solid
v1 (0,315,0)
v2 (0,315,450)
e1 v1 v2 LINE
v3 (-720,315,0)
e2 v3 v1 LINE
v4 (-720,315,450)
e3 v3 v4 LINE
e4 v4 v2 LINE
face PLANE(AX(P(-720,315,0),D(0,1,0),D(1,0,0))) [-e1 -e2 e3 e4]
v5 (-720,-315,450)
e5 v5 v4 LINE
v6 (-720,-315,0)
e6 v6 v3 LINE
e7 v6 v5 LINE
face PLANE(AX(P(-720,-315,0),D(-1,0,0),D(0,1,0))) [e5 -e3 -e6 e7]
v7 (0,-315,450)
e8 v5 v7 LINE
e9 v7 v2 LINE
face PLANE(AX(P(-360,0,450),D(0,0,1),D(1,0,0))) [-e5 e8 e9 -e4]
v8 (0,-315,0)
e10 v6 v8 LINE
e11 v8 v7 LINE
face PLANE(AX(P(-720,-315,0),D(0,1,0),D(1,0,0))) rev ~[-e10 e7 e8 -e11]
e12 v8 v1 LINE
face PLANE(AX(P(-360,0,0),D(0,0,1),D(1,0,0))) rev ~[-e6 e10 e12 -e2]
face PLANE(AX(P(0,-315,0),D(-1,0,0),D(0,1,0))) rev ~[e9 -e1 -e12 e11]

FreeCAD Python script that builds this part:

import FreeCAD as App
import Part
import Sketcher

V = App.Vector
Q = App.Units.Quantity


def add_polygon(sketch, points):
    """Adds a closed chain of lines whose ends are joined by coincident constraints."""
    first, n = sketch.GeometryCount, len(points)
    for a, b in zip(points, points[1:] + points[:1]):
        sketch.addGeometry(Part.LineSegment(App.Vector(*a, 0), App.Vector(*b, 0)), False)
    for i in range(n):
        sketch.addConstraint(Sketcher.Constraint("Coincident", first + i, 2, first + (i + 1) % n, 1))

doc = App.newDocument("Part")
body = doc.addObject("PartDesign::Body", "Body")

# Sketch on XY plane
sketch1 = body.newObject("Sketcher::SketchObject", "Sketch")
sketch1.AttachmentSupport = (doc.getObject("XY_Plane"), [""])
sketch1.MapMode = "FlatFace"
add_polygon(sketch1, [(-720, 315), (-720, -315), (0, -315), (0, 315)])  # lines 0-3
sketch1.addConstraint(Sketcher.Constraint("Vertical", 0))
sketch1.addConstraint(Sketcher.Constraint("Horizontal", 1))
sketch1.addConstraint(Sketcher.Constraint("Vertical", 2))
sketch1.addConstraint(Sketcher.Constraint("Horizontal", 3))
sketch1.addConstraint(Sketcher.Constraint("Symmetric", 1, 2, 2, 2, -1, 1))
sketch1.addConstraint(Sketcher.Constraint("DistanceX", 1, 1, 1, 2, Q("720 mm")))
sketch1.addConstraint(Sketcher.Constraint("DistanceY", 0, 2, 0, 1, Q("630 mm")))
pad1 = body.newObject("PartDesign::Pad", "Pad")
pad1.Profile = sketch1
pad1.Length = 450

doc.recompute()
